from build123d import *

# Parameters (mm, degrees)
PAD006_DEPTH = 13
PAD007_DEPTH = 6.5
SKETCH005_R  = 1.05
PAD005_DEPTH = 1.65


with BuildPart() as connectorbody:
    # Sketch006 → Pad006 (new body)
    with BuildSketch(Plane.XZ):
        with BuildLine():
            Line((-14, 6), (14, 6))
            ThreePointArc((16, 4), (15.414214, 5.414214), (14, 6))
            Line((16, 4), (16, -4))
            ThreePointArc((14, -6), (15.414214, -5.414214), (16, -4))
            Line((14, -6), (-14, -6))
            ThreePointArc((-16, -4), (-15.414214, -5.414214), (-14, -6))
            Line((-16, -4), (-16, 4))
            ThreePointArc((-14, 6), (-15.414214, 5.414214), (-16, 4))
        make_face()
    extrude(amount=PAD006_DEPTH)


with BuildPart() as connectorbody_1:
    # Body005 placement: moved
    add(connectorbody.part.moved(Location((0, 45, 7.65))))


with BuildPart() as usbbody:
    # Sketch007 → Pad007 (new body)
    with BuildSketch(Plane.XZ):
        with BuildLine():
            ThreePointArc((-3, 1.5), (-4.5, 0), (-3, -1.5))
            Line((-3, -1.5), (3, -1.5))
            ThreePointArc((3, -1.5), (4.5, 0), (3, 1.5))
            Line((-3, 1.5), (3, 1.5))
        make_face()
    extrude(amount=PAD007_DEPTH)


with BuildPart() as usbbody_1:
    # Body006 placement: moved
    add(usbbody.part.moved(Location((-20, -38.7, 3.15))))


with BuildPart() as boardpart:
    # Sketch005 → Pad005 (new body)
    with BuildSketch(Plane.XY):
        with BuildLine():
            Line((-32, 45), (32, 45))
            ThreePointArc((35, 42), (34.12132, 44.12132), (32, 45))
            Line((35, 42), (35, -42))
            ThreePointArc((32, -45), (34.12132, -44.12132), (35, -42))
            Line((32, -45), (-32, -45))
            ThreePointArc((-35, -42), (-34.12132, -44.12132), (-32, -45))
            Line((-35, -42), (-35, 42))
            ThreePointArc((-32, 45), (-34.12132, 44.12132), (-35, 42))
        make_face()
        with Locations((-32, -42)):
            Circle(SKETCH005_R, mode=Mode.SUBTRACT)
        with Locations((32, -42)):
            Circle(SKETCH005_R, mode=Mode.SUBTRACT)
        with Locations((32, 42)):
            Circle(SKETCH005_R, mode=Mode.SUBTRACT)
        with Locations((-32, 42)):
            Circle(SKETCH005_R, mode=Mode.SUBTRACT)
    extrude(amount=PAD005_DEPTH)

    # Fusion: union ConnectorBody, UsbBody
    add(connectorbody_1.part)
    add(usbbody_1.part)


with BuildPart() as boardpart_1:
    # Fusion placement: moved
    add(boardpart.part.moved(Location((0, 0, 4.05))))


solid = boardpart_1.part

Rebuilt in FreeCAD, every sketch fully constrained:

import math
import FreeCAD as App
import Part
import Sketcher

V = App.Vector

doc = App.newDocument("Part")
params = doc.addObject("Spreadsheet::Sheet", "Params")
for row, (alias, value) in enumerate([
    ("sketch1_radius", "1.999999 mm"),
    ("sketch1_width", "28 mm"),
    ("sketch1_height", "8 mm"),
    ("pad1_length", "13 mm"),
    ("sketch2_radius", "1.5 mm"),
    ("sketch2_width", "6 mm"),
    ("pad2_length", "6.5 mm"),
    ("sketch3_radius", "3.000001 mm"),
    ("sketch3_diameter", "2.1 mm"),
    ("sketch3_width", "64 mm"),
    ("sketch3_height", "84 mm"),
    ("pad3_length", "1.65 mm"),
], start=1):
    params.set(f"A{row}", alias)
    params.set(f"B{row}", "=" + value)
    params.setAlias(f"B{row}", alias)

body = doc.addObject("PartDesign::Body", "Body")

sketch1 = body.newObject("Sketcher::SketchObject", "Sketch")
sketch1.AttachmentSupport = (doc.getObject("XZ_Plane"), [""])
sketch1.MapMode = "FlatFace"
sketch1.addGeometry([
    Part.LineSegment(V(14, 6, 0), V(-14, 6, 0)),
    Part.ArcOfCircle(Part.Circle(V(-14.000001, 4.000001, 0), V(0, 0, 1), 1.999999), math.radians(89.999957), math.radians(180.000043)),
    Part.LineSegment(V(-16, 4, 0), V(-16, -4, 0)),
    Part.ArcOfCircle(Part.Circle(V(-14.000001, -4.000001, 0), V(0, 0, 1), 1.999999), math.radians(179.999957), math.radians(270.000043)),
    Part.LineSegment(V(-14, -6, 0), V(14, -6, 0)),
    Part.ArcOfCircle(Part.Circle(V(14.000001, -4.000001, 0), V(0, 0, 1), 1.999999), math.radians(-90.000043), math.radians(0.000043)),
    Part.LineSegment(V(16, -4, 0), V(16, 4, 0)),
    Part.ArcOfCircle(Part.Circle(V(14.000001, 4.000001, 0), V(0, 0, 1), 1.999999), math.radians(-0.000043), math.radians(90.000043)),
], False)
sketch1.addConstraint([
    Sketcher.Constraint("Tangent", 0, 2, 1, 1),
    Sketcher.Constraint("Tangent", 1, 2, 2, 1),
    Sketcher.Constraint("Tangent", 2, 2, 3, 1),
    Sketcher.Constraint("Tangent", 3, 2, 4, 1),
    Sketcher.Constraint("Tangent", 4, 2, 5, 1),
    Sketcher.Constraint("Tangent", 5, 2, 6, 1),
    Sketcher.Constraint("Tangent", 6, 2, 7, 1),
    Sketcher.Constraint("Tangent", 7, 2, 0, 1),
    Sketcher.Constraint("Horizontal", 0),
    Sketcher.Constraint("Vertical", 2),
    Sketcher.Constraint("Horizontal", 4),
    Sketcher.Constraint("Vertical", 6),
    Sketcher.Constraint("Equal", 1, 3),
    Sketcher.Constraint("Equal", 3, 5),
    Sketcher.Constraint("Equal", 5, 7),
    Sketcher.Constraint("Symmetric", 1, 3, 5, 3, -1, 1),
    Sketcher.Constraint("Radius", 1, 1.999999),
    Sketcher.Constraint("DistanceX", 0, 2, 0, 1, 28.0),
    Sketcher.Constraint("DistanceY", 2, 2, 2, 1, 8.0),
])
sketch1.setExpression("Constraints[16]", "Params.sketch1_radius")
sketch1.setExpression("Constraints[17]", "Params.sketch1_width")
sketch1.setExpression("Constraints[18]", "Params.sketch1_height")
pad1 = body.newObject("PartDesign::Pad", "Pad")
pad1.Profile = sketch1
pad1.setExpression("Length", "Params.pad1_length")
body2 = doc.addObject("PartDesign::Body", "Body001")
doc.recompute()

body.Placement = App.Placement(V(0, 45, 7.65), App.Rotation(V(0, 0, 1), 0))
boolean = body2.newObject("PartDesign::Boolean", "Boolean")
boolean.Type = "Fuse"
boolean.addObjects([body])
body3 = doc.addObject("PartDesign::Body", "Body002")

sketch2 = body3.newObject("Sketcher::SketchObject", "Sketch001")
sketch2.AttachmentSupport = (doc.getObject("XZ_Plane002"), [""])
sketch2.MapMode = "FlatFace"
sketch2.addGeometry([
    Part.ArcOfCircle(Part.Circle(V(-3, 0, 0), V(0, 0, 1), 1.5), math.radians(90), math.radians(270)),
    Part.LineSegment(V(-3, -1.5, 0), V(3, -1.5, 0)),
    Part.ArcOfCircle(Part.Circle(V(3, 0, 0), V(0, 0, 1), 1.5), math.radians(-90), math.radians(90)),
    Part.LineSegment(V(3, 1.5, 0), V(-3, 1.5, 0)),
], False)
sketch2.addConstraint([
    Sketcher.Constraint("Tangent", 0, 2, 1, 1),
    Sketcher.Constraint("Tangent", 1, 2, 2, 1),
    Sketcher.Constraint("Tangent", 2, 2, 3, 1),
    Sketcher.Constraint("Tangent", 3, 2, 0, 1),
    Sketcher.Constraint("Horizontal", 1),
    Sketcher.Constraint("Horizontal", 3),
    Sketcher.Constraint("Symmetric", 0, 3, 2, 3, -1, 1),
    Sketcher.Constraint("Radius", 0, 1.5),
    Sketcher.Constraint("DistanceX", 1, 1, 1, 2, 6.0),
])
sketch2.setExpression("Constraints[7]", "Params.sketch2_radius")
sketch2.setExpression("Constraints[8]", "Params.sketch2_width")
pad2 = body3.newObject("PartDesign::Pad", "Pad001")
pad2.Profile = sketch2
pad2.setExpression("Length", "Params.pad2_length")
body4 = doc.addObject("PartDesign::Body", "Body003")
doc.recompute()

body3.Placement = App.Placement(V(-20, -38.7, 3.15), App.Rotation(V(0, 0, 1), 0))
boolean2 = body4.newObject("PartDesign::Boolean", "Boolean001")
boolean2.Type = "Fuse"
boolean2.addObjects([body3])
body5 = doc.addObject("PartDesign::Body", "Body004")

sketch3 = body5.newObject("Sketcher::SketchObject", "Sketch002")
sketch3.AttachmentSupport = (doc.getObject("XY_Plane004"), [""])
sketch3.MapMode = "FlatFace"
sketch3.addGeometry([
    Part.LineSegment(V(32, 45, 0), V(-32, 45, 0)),
    Part.ArcOfCircle(Part.Circle(V(-31.999999, 41.999999, 0), V(0, 0, 1), 3.000001), math.radians(90.000022), math.radians(179.999978)),
    Part.LineSegment(V(-35, 42, 0), V(-35, -42, 0)),
    Part.ArcOfCircle(Part.Circle(V(-31.999999, -41.999999, 0), V(0, 0, 1), 3.000001), math.radians(-179.999978), math.radians(-90.000022)),
    Part.LineSegment(V(-32, -45, 0), V(32, -45, 0)),
    Part.ArcOfCircle(Part.Circle(V(31.999999, -41.999999, 0), V(0, 0, 1), 3.000001), math.radians(-89.999978), math.radians(-0.000022)),
    Part.LineSegment(V(35, -42, 0), V(35, 42, 0)),
    Part.ArcOfCircle(Part.Circle(V(31.999999, 41.999999, 0), V(0, 0, 1), 3.000001), math.radians(0.000022), math.radians(89.999978)),
    Part.Circle(V(32, -42, 0), V(0, 0, 1), 1.05),
    Part.Circle(V(-32, -42, 0), V(0, 0, 1), 1.05),
    Part.Circle(V(32, 42, 0), V(0, 0, 1), 1.05),
    Part.Circle(V(-32, 42, 0), V(0, 0, 1), 1.05),
], False)
sketch3.addConstraint([
    Sketcher.Constraint("Tangent", 0, 2, 1, 1),
    Sketcher.Constraint("Tangent", 1, 2, 2, 1),
    Sketcher.Constraint("Tangent", 2, 2, 3, 1),
    Sketcher.Constraint("Tangent", 3, 2, 4, 1),
    Sketcher.Constraint("Tangent", 4, 2, 5, 1),
    Sketcher.Constraint("Tangent", 5, 2, 6, 1),
    Sketcher.Constraint("Tangent", 6, 2, 7, 1),
    Sketcher.Constraint("Tangent", 7, 2, 0, 1),
    Sketcher.Constraint("Horizontal", 0),
    Sketcher.Constraint("Vertical", 2),
    Sketcher.Constraint("Horizontal", 4),
    Sketcher.Constraint("Vertical", 6),
    Sketcher.Constraint("Coincident", 8, 3, 5, 3),
    Sketcher.Constraint("Coincident", 9, 3, 3, 3),
    Sketcher.Constraint("Coincident", 10, 3, 7, 3),
    Sketcher.Constraint("Coincident", 11, 3, 1, 3),
    Sketcher.Constraint("Equal", 1, 3),
    Sketcher.Constraint("Equal", 3, 5),
    Sketcher.Constraint("Equal", 5, 7),
    Sketcher.Constraint("Equal", 8, 9),
    Sketcher.Constraint("Equal", 9, 10),
    Sketcher.Constraint("Equal", 10, 11),
    Sketcher.Constraint("Symmetric", 1, 3, 5, 3, -1, 1),
    Sketcher.Constraint("Radius", 1, 3.000001),
    Sketcher.Constraint("Diameter", 8, 2.1),
    Sketcher.Constraint("DistanceX", 0, 2, 0, 1, 64.0),
    Sketcher.Constraint("DistanceY", 2, 2, 2, 1, 84.0),
])
sketch3.setExpression("Constraints[23]", "Params.sketch3_radius")
sketch3.setExpression("Constraints[24]", "Params.sketch3_diameter")
sketch3.setExpression("Constraints[25]", "Params.sketch3_width")
sketch3.setExpression("Constraints[26]", "Params.sketch3_height")
pad3 = body5.newObject("PartDesign::Pad", "Pad002")
pad3.Profile = sketch3
pad3.setExpression("Length", "Params.pad3_length")
doc.recompute()

boolean3 = body5.newObject("PartDesign::Boolean", "Boolean002")
boolean3.Type = "Fuse"
boolean3.addObjects([body2])
doc.recompute()

boolean4 = body5.newObject("PartDesign::Boolean", "Boolean003")
boolean4.Type = "Fuse"
boolean4.addObjects([body4])
body6 = doc.addObject("PartDesign::Body", "Body005")
doc.recompute()

body5.Placement = App.Placement(V(0, 0, 4.05), App.Rotation(V(0, 0, 1), 0))
boolean5 = body6.newObject("PartDesign::Boolean", "Boolean004")
boolean5.Type = "Fuse"
boolean5.addObjects([body5])

doc.recompute()
